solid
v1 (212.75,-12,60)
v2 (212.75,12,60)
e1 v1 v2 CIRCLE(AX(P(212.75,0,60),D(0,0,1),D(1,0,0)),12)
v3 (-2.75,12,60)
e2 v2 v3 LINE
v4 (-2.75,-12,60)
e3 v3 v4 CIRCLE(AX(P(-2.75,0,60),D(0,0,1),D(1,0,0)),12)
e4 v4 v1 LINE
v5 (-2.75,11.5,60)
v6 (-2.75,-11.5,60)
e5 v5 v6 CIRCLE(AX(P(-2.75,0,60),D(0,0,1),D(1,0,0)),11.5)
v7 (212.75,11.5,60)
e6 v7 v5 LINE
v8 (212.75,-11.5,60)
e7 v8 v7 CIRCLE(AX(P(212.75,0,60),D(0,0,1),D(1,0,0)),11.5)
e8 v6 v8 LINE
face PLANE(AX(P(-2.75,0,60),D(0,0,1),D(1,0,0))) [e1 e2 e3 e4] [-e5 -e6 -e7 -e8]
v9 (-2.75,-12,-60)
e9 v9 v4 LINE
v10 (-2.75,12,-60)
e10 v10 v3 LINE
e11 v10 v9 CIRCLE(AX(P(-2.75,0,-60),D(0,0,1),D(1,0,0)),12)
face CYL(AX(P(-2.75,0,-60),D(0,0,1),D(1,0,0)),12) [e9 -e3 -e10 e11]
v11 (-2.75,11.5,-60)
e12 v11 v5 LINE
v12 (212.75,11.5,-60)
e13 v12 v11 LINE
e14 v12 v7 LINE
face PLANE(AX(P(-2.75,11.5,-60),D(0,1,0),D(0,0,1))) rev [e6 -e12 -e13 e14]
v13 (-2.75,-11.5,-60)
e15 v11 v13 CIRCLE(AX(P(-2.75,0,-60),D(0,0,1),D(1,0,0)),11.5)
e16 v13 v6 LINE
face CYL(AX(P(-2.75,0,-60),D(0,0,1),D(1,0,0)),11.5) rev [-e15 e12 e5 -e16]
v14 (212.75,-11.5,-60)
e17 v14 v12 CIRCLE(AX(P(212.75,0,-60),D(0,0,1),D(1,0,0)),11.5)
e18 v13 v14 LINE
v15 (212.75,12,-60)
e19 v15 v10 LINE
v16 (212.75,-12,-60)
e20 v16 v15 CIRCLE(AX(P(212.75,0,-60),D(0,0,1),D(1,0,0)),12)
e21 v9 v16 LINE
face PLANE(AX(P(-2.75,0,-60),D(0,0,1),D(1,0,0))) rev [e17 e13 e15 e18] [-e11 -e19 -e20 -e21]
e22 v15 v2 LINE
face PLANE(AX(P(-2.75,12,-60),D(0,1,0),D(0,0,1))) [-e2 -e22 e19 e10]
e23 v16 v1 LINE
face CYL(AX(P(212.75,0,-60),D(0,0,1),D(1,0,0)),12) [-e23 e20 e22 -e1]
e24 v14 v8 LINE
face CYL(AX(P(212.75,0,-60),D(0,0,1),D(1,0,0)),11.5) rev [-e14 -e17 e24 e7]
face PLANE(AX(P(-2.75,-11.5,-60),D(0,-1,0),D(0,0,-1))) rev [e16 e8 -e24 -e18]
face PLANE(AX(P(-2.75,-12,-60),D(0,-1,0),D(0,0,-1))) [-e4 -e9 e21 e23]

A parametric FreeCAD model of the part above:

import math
import FreeCAD as App
import Part
import Sketcher

V = App.Vector
Q = App.Units.Quantity

doc = App.newDocument("Part")
params = doc.addObject("Spreadsheet::Sheet", "Params")
for row, (alias, value) in enumerate([
    ("sketch1_radius", "12 mm"),
    ("sketch1_radius2", "11.5 mm"),
    ("sketch1_width", "215.5 mm"),
    ("pad1_length", "120 mm"),
], start=1):
    params.set(f"A{row}", alias)
    params.set(f"B{row}", "=" + value)
    params.setAlias(f"B{row}", alias)

body = doc.addObject("PartDesign::Body", "Body")

sketch1 = body.newObject("Sketcher::SketchObject", "Sketch")
sketch1.AttachmentSupport = (doc.getObject("XY_Plane"), [""])
sketch1.MapMode = "FlatFace"
sketch1.AttachmentOffset = App.Placement(V(0, 0, 60), App.Rotation())
sketch1.addGeometry(Part.LineSegment(V(212.75, 12, 0), V(-2.75, 12, 0)), False)
sketch1.addGeometry(Part.ArcOfCircle(Part.Circle(V(-2.75, 0, 0), V(0, 0, 1), 12), math.radians(90), math.radians(270)), False)
sketch1.addGeometry(Part.LineSegment(V(-2.75, -12, 0), V(212.75, -12, 0)), False)
sketch1.addGeometry(Part.ArcOfCircle(Part.Circle(V(212.75, 0, 0), V(0, 0, 1), 12), math.radians(-90), math.radians(90)), False)
sketch1.addGeometry(Part.LineSegment(V(-2.75, 11.5, 0), V(212.75, 11.5, 0)), False)
sketch1.addGeometry(Part.ArcOfCircle(Part.Circle(V(212.75, 0, 0), V(0, 0, 1), 11.5), math.radians(-90), math.radians(90)), False)
sketch1.addGeometry(Part.LineSegment(V(212.75, -11.5, 0), V(-2.75, -11.5, 0)), False)
sketch1.addGeometry(Part.ArcOfCircle(Part.Circle(V(-2.75, 0, 0), V(0, 0, 1), 11.5), math.radians(90), math.radians(270)), False)
sketch1.addConstraint(Sketcher.Constraint("Tangent", 0, 2, 1, 1))
sketch1.addConstraint(Sketcher.Constraint("Tangent", 1, 2, 2, 1))
sketch1.addConstraint(Sketcher.Constraint("Tangent", 2, 2, 3, 1))
sketch1.addConstraint(Sketcher.Constraint("Tangent", 3, 2, 0, 1))
sketch1.addConstraint(Sketcher.Constraint("Tangent", 4, 2, 5, 2))
sketch1.addConstraint(Sketcher.Constraint("Tangent", 5, 1, 6, 1))
sketch1.addConstraint(Sketcher.Constraint("Tangent", 6, 2, 7, 2))
sketch1.addConstraint(Sketcher.Constraint("Tangent", 7, 1, 4, 1))
sketch1.addConstraint(Sketcher.Constraint("Horizontal", 0))
sketch1.addConstraint(Sketcher.Constraint("Horizontal", 2))
sketch1.addConstraint(Sketcher.Constraint("Horizontal", 4))
sketch1.addConstraint(Sketcher.Constraint("Horizontal", 6))
sketch1.addConstraint(Sketcher.Constraint("Coincident", 5, 3, 3, 3))
sketch1.addConstraint(Sketcher.Constraint("PointOnObject", 1, 3, -1))
sketch1.addConstraint(Sketcher.Constraint("Vertical", 7, 3, 0, 2))
sketch1.addConstraint(Sketcher.Constraint("Radius", 1, Q("12 mm")))
sketch1.addConstraint(Sketcher.Constraint("Radius", 5, Q("11.5 mm")))
sketch1.addConstraint(Sketcher.Constraint("DistanceX", 0, 2, 0, 1, Q("215.5 mm")))
sketch1.addConstraint(Sketcher.Constraint("DistanceX", 1, 3, -1, 1, Q("2.75 mm")))
sketch1.setExpression("Constraints[15]", "Params.sketch1_radius")
sketch1.setExpression("Constraints[16]", "Params.sketch1_radius2")
sketch1.setExpression("Constraints[17]", "Params.sketch1_width")
pad1 = body.newObject("PartDesign::Pad", "Pad")
pad1.Profile = sketch1
pad1.setExpression("Length", "Params.pad1_length")
pad1.Reversed = True

doc.recompute()
